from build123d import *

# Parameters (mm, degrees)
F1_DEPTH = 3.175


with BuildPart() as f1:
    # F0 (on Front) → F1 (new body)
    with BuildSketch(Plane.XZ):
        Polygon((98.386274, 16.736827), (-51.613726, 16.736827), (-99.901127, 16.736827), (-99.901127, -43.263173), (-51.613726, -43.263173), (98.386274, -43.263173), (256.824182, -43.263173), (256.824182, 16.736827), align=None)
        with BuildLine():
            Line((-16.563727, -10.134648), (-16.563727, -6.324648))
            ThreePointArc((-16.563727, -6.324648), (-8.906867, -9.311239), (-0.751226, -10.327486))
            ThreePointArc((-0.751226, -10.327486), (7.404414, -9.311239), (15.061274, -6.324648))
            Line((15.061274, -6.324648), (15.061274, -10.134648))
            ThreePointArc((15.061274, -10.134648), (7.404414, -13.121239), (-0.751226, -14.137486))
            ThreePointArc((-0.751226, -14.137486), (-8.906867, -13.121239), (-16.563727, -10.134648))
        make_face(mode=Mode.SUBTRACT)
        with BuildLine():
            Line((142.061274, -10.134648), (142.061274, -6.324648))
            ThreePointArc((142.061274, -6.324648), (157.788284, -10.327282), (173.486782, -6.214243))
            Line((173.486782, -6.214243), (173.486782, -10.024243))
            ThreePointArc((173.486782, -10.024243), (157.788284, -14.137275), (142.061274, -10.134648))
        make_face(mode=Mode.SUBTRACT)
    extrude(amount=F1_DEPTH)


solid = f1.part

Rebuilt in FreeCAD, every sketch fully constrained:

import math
import FreeCAD as App
import Part
import Sketcher
Q = App.Units.Quantity


def add_polygon(sketch, points):
    """Adds a closed chain of lines whose ends are joined by coincident constraints."""
    first, n = sketch.GeometryCount, len(points)
    for a, b in zip(points, points[1:] + points[:1]):
        sketch.addGeometry(Part.LineSegment(App.Vector(*a, 0), App.Vector(*b, 0)), False)
    for i in range(n):
        sketch.addConstraint(Sketcher.Constraint("Coincident", first + i, 2, first + (i + 1) % n, 1))

doc = App.newDocument("Part")
params = doc.addObject("Spreadsheet::Sheet", "Params")
for row, (alias, value) in enumerate([
    ("sketch1_height", "0.15 in"),
    ("sketch1_height2", "0.15 in"),
    ("sketch1_height3", "0.15 in"),
    ("sketch1_height4", "0.15 in"),
    ("pad1_length", "0.125 in"),
], start=1):
    params.set(f"A{row}", alias)
    params.set(f"B{row}", "=" + value)
    params.setAlias(f"B{row}", alias)

body = doc.addObject("PartDesign::Body", "Body")

# Sketch on XZ plane
sketch1 = doc.addObject("Sketcher::SketchObject", "Sketch")
body.addObject(sketch1)
sketch1.AttachmentSupport = (doc.XZ_Plane, [""])
sketch1.MapMode = "FlatFace"
add_polygon(sketch1, [(-99.901127, 16.736827), (-99.901127, -43.263173), (256.824182, -43.263173), (256.824182, 16.736827)])  # lines 0-3
sketch1.addGeometry(Part.ArcOfCircle(Part.Circle(App.Vector(-0.751229, 19.096159, 0), App.Vector(0, 0, 1), 33.233645), math.radians(-118.411312), math.radians(-89.999994)), False)  # 4
sketch1.addGeometry(Part.LineSegment(App.Vector(-16.563727, -10.134648, 0), App.Vector(-16.563727, -6.324648, 0)), False)  # 5
sketch1.addGeometry(Part.ArcOfCircle(Part.Circle(App.Vector(-0.751229, 22.906159, 0), App.Vector(0, 0, 1), 33.233645), math.radians(-118.411312), math.radians(-89.999994)), False)  # 6
sketch1.addGeometry(Part.ArcOfCircle(Part.Circle(App.Vector(-0.751224, 22.906159, 0), App.Vector(0, 0, 1), 33.233645), math.radians(-90.000004), math.radians(-61.588688)), False)  # 7
sketch1.addGeometry(Part.LineSegment(App.Vector(15.061274, -6.324648, 0), App.Vector(15.061274, -10.134648, 0)), False)  # 8
sketch1.addGeometry(Part.ArcOfCircle(Part.Circle(App.Vector(-0.751224, 19.096159, 0), App.Vector(0, 0, 1), 33.233645), math.radians(-90.000004), math.radians(-61.588688)), False)  # 9
sketch1.addGeometry(Part.ArcOfCircle(Part.Circle(App.Vector(157.674278, 18.313154, 0), App.Vector(0, 0, 1), 32.45063), math.radians(-118.759296), math.radians(-60.838119)), False)  # 10
sketch1.addGeometry(Part.LineSegment(App.Vector(142.061274, -10.134648, 0), App.Vector(142.061274, -6.324648, 0)), False)  # 11
sketch1.addGeometry(Part.ArcOfCircle(Part.Circle(App.Vector(157.674278, 22.123098, 0), App.Vector(0, 0, 1), 32.450581), math.radians(-118.759344), math.radians(-60.838071)), False)  # 12
sketch1.addGeometry(Part.LineSegment(App.Vector(173.486782, -6.214243, 0), App.Vector(173.486782, -10.024243, 0)), False)  # 13
sketch1.addConstraint([
    Sketcher.Constraint("Coincident", 4, 1, 5, 1),
    Sketcher.Constraint("Coincident", 5, 2, 6, 1),
    Sketcher.Constraint("Coincident", 6, 2, 7, 1),
    Sketcher.Constraint("Coincident", 7, 2, 8, 1),
    Sketcher.Constraint("Coincident", 8, 2, 9, 2),
    Sketcher.Constraint("Coincident", 9, 1, 4, 2),
    Sketcher.Constraint("Coincident", 10, 1, 11, 1),
    Sketcher.Constraint("Coincident", 11, 2, 12, 1),
    Sketcher.Constraint("Coincident", 12, 2, 13, 1),
    Sketcher.Constraint("Coincident", 13, 2, 10, 2),
    Sketcher.Constraint("Vertical", 0),
    Sketcher.Constraint("Horizontal", 1),
    Sketcher.Constraint("Vertical", 2),
    Sketcher.Constraint("Horizontal", 3),
    Sketcher.Constraint("Vertical", 5),
    Sketcher.Constraint("Vertical", 8),
    Sketcher.Constraint("Vertical", 11),
    Sketcher.Constraint("Vertical", 13),
    Sketcher.Constraint("Coincident", 7, 3, 6, 3),
    Sketcher.Constraint("Coincident", 9, 3, 4, 3),
    Sketcher.Constraint("DistanceX", 8, 2, 10, 1, Q("5 in")),
    Sketcher.Constraint("DistanceY", 5, 1, 5, 2, Q("0.15 in")),
    Sketcher.Constraint("DistanceY", 8, 2, 8, 1, Q("0.15 in")),
    Sketcher.Constraint("DistanceY", 11, 1, 11, 2, Q("0.15 in")),
    Sketcher.Constraint("DistanceY", 13, 2, 13, 1, Q("0.15 in")),
    Sketcher.Constraint("DistanceY", 4, 3, 6, 3, Q("0.15 in")),
    Sketcher.Constraint("DistanceY", 4, 1, 7, 2, Q("0.15 in")),
    Sketcher.Constraint("Radius", 10, Q("32.45063 mm")),
    Sketcher.Constraint("Radius", 12, Q("32.450581 mm")),
    Sketcher.Constraint("DistanceX", 3, 2, 4, 1, Q("3.281 in")),
    Sketcher.Constraint("DistanceX", 12, 2, 2, 2, Q("3.281 in")),
    Sketcher.Constraint("DistanceY", 0, 2, 0, 1, Q("60 mm")),
    Sketcher.Constraint("Radius", 4, Q("33.233645 mm")),
    Sketcher.Constraint("DistanceX", 1, 1, 1, 2, Q("356.725309 mm")),
    Sketcher.Constraint("DistanceY", -1, 1, 12, 3, Q("22.123098 mm")),
    Sketcher.Constraint("DistanceX", 4, 1, 6, 2, Q("15.812501 mm")),
    Sketcher.Constraint("DistanceX", 6, 2, 7, 2, Q("15.8125 mm")),
    Sketcher.Constraint("DistanceX", 9, 1, 8, 2, Q("15.8125 mm")),
    Sketcher.Constraint("DistanceX", 4, 3, -1, 1, Q("0.751229 mm")),
    Sketcher.Constraint("DistanceY", -1, 1, 4, 3, Q("19.096159 mm")),
    Sketcher.Constraint("DistanceX", -1, 1, 10, 3, Q("157.674278 mm")),
    Sketcher.Constraint("DistanceY", 1, 2, 12, 3, Q("65.386271 mm")),
])
sketch1.setExpression("Constraints[25]", "Params.sketch1_height")
sketch1.setExpression("Constraints[26]", "Params.sketch1_height2")
sketch1.setExpression("Constraints[27]", "Params.sketch1_height3")
sketch1.setExpression("Constraints[28]", "Params.sketch1_height4")
pad1 = doc.addObject("PartDesign::Pad", "Pad")
body.addObject(pad1)
pad1.Profile = sketch1
pad1.setExpression("Length", "Params.pad1_length")

doc.recompute()
